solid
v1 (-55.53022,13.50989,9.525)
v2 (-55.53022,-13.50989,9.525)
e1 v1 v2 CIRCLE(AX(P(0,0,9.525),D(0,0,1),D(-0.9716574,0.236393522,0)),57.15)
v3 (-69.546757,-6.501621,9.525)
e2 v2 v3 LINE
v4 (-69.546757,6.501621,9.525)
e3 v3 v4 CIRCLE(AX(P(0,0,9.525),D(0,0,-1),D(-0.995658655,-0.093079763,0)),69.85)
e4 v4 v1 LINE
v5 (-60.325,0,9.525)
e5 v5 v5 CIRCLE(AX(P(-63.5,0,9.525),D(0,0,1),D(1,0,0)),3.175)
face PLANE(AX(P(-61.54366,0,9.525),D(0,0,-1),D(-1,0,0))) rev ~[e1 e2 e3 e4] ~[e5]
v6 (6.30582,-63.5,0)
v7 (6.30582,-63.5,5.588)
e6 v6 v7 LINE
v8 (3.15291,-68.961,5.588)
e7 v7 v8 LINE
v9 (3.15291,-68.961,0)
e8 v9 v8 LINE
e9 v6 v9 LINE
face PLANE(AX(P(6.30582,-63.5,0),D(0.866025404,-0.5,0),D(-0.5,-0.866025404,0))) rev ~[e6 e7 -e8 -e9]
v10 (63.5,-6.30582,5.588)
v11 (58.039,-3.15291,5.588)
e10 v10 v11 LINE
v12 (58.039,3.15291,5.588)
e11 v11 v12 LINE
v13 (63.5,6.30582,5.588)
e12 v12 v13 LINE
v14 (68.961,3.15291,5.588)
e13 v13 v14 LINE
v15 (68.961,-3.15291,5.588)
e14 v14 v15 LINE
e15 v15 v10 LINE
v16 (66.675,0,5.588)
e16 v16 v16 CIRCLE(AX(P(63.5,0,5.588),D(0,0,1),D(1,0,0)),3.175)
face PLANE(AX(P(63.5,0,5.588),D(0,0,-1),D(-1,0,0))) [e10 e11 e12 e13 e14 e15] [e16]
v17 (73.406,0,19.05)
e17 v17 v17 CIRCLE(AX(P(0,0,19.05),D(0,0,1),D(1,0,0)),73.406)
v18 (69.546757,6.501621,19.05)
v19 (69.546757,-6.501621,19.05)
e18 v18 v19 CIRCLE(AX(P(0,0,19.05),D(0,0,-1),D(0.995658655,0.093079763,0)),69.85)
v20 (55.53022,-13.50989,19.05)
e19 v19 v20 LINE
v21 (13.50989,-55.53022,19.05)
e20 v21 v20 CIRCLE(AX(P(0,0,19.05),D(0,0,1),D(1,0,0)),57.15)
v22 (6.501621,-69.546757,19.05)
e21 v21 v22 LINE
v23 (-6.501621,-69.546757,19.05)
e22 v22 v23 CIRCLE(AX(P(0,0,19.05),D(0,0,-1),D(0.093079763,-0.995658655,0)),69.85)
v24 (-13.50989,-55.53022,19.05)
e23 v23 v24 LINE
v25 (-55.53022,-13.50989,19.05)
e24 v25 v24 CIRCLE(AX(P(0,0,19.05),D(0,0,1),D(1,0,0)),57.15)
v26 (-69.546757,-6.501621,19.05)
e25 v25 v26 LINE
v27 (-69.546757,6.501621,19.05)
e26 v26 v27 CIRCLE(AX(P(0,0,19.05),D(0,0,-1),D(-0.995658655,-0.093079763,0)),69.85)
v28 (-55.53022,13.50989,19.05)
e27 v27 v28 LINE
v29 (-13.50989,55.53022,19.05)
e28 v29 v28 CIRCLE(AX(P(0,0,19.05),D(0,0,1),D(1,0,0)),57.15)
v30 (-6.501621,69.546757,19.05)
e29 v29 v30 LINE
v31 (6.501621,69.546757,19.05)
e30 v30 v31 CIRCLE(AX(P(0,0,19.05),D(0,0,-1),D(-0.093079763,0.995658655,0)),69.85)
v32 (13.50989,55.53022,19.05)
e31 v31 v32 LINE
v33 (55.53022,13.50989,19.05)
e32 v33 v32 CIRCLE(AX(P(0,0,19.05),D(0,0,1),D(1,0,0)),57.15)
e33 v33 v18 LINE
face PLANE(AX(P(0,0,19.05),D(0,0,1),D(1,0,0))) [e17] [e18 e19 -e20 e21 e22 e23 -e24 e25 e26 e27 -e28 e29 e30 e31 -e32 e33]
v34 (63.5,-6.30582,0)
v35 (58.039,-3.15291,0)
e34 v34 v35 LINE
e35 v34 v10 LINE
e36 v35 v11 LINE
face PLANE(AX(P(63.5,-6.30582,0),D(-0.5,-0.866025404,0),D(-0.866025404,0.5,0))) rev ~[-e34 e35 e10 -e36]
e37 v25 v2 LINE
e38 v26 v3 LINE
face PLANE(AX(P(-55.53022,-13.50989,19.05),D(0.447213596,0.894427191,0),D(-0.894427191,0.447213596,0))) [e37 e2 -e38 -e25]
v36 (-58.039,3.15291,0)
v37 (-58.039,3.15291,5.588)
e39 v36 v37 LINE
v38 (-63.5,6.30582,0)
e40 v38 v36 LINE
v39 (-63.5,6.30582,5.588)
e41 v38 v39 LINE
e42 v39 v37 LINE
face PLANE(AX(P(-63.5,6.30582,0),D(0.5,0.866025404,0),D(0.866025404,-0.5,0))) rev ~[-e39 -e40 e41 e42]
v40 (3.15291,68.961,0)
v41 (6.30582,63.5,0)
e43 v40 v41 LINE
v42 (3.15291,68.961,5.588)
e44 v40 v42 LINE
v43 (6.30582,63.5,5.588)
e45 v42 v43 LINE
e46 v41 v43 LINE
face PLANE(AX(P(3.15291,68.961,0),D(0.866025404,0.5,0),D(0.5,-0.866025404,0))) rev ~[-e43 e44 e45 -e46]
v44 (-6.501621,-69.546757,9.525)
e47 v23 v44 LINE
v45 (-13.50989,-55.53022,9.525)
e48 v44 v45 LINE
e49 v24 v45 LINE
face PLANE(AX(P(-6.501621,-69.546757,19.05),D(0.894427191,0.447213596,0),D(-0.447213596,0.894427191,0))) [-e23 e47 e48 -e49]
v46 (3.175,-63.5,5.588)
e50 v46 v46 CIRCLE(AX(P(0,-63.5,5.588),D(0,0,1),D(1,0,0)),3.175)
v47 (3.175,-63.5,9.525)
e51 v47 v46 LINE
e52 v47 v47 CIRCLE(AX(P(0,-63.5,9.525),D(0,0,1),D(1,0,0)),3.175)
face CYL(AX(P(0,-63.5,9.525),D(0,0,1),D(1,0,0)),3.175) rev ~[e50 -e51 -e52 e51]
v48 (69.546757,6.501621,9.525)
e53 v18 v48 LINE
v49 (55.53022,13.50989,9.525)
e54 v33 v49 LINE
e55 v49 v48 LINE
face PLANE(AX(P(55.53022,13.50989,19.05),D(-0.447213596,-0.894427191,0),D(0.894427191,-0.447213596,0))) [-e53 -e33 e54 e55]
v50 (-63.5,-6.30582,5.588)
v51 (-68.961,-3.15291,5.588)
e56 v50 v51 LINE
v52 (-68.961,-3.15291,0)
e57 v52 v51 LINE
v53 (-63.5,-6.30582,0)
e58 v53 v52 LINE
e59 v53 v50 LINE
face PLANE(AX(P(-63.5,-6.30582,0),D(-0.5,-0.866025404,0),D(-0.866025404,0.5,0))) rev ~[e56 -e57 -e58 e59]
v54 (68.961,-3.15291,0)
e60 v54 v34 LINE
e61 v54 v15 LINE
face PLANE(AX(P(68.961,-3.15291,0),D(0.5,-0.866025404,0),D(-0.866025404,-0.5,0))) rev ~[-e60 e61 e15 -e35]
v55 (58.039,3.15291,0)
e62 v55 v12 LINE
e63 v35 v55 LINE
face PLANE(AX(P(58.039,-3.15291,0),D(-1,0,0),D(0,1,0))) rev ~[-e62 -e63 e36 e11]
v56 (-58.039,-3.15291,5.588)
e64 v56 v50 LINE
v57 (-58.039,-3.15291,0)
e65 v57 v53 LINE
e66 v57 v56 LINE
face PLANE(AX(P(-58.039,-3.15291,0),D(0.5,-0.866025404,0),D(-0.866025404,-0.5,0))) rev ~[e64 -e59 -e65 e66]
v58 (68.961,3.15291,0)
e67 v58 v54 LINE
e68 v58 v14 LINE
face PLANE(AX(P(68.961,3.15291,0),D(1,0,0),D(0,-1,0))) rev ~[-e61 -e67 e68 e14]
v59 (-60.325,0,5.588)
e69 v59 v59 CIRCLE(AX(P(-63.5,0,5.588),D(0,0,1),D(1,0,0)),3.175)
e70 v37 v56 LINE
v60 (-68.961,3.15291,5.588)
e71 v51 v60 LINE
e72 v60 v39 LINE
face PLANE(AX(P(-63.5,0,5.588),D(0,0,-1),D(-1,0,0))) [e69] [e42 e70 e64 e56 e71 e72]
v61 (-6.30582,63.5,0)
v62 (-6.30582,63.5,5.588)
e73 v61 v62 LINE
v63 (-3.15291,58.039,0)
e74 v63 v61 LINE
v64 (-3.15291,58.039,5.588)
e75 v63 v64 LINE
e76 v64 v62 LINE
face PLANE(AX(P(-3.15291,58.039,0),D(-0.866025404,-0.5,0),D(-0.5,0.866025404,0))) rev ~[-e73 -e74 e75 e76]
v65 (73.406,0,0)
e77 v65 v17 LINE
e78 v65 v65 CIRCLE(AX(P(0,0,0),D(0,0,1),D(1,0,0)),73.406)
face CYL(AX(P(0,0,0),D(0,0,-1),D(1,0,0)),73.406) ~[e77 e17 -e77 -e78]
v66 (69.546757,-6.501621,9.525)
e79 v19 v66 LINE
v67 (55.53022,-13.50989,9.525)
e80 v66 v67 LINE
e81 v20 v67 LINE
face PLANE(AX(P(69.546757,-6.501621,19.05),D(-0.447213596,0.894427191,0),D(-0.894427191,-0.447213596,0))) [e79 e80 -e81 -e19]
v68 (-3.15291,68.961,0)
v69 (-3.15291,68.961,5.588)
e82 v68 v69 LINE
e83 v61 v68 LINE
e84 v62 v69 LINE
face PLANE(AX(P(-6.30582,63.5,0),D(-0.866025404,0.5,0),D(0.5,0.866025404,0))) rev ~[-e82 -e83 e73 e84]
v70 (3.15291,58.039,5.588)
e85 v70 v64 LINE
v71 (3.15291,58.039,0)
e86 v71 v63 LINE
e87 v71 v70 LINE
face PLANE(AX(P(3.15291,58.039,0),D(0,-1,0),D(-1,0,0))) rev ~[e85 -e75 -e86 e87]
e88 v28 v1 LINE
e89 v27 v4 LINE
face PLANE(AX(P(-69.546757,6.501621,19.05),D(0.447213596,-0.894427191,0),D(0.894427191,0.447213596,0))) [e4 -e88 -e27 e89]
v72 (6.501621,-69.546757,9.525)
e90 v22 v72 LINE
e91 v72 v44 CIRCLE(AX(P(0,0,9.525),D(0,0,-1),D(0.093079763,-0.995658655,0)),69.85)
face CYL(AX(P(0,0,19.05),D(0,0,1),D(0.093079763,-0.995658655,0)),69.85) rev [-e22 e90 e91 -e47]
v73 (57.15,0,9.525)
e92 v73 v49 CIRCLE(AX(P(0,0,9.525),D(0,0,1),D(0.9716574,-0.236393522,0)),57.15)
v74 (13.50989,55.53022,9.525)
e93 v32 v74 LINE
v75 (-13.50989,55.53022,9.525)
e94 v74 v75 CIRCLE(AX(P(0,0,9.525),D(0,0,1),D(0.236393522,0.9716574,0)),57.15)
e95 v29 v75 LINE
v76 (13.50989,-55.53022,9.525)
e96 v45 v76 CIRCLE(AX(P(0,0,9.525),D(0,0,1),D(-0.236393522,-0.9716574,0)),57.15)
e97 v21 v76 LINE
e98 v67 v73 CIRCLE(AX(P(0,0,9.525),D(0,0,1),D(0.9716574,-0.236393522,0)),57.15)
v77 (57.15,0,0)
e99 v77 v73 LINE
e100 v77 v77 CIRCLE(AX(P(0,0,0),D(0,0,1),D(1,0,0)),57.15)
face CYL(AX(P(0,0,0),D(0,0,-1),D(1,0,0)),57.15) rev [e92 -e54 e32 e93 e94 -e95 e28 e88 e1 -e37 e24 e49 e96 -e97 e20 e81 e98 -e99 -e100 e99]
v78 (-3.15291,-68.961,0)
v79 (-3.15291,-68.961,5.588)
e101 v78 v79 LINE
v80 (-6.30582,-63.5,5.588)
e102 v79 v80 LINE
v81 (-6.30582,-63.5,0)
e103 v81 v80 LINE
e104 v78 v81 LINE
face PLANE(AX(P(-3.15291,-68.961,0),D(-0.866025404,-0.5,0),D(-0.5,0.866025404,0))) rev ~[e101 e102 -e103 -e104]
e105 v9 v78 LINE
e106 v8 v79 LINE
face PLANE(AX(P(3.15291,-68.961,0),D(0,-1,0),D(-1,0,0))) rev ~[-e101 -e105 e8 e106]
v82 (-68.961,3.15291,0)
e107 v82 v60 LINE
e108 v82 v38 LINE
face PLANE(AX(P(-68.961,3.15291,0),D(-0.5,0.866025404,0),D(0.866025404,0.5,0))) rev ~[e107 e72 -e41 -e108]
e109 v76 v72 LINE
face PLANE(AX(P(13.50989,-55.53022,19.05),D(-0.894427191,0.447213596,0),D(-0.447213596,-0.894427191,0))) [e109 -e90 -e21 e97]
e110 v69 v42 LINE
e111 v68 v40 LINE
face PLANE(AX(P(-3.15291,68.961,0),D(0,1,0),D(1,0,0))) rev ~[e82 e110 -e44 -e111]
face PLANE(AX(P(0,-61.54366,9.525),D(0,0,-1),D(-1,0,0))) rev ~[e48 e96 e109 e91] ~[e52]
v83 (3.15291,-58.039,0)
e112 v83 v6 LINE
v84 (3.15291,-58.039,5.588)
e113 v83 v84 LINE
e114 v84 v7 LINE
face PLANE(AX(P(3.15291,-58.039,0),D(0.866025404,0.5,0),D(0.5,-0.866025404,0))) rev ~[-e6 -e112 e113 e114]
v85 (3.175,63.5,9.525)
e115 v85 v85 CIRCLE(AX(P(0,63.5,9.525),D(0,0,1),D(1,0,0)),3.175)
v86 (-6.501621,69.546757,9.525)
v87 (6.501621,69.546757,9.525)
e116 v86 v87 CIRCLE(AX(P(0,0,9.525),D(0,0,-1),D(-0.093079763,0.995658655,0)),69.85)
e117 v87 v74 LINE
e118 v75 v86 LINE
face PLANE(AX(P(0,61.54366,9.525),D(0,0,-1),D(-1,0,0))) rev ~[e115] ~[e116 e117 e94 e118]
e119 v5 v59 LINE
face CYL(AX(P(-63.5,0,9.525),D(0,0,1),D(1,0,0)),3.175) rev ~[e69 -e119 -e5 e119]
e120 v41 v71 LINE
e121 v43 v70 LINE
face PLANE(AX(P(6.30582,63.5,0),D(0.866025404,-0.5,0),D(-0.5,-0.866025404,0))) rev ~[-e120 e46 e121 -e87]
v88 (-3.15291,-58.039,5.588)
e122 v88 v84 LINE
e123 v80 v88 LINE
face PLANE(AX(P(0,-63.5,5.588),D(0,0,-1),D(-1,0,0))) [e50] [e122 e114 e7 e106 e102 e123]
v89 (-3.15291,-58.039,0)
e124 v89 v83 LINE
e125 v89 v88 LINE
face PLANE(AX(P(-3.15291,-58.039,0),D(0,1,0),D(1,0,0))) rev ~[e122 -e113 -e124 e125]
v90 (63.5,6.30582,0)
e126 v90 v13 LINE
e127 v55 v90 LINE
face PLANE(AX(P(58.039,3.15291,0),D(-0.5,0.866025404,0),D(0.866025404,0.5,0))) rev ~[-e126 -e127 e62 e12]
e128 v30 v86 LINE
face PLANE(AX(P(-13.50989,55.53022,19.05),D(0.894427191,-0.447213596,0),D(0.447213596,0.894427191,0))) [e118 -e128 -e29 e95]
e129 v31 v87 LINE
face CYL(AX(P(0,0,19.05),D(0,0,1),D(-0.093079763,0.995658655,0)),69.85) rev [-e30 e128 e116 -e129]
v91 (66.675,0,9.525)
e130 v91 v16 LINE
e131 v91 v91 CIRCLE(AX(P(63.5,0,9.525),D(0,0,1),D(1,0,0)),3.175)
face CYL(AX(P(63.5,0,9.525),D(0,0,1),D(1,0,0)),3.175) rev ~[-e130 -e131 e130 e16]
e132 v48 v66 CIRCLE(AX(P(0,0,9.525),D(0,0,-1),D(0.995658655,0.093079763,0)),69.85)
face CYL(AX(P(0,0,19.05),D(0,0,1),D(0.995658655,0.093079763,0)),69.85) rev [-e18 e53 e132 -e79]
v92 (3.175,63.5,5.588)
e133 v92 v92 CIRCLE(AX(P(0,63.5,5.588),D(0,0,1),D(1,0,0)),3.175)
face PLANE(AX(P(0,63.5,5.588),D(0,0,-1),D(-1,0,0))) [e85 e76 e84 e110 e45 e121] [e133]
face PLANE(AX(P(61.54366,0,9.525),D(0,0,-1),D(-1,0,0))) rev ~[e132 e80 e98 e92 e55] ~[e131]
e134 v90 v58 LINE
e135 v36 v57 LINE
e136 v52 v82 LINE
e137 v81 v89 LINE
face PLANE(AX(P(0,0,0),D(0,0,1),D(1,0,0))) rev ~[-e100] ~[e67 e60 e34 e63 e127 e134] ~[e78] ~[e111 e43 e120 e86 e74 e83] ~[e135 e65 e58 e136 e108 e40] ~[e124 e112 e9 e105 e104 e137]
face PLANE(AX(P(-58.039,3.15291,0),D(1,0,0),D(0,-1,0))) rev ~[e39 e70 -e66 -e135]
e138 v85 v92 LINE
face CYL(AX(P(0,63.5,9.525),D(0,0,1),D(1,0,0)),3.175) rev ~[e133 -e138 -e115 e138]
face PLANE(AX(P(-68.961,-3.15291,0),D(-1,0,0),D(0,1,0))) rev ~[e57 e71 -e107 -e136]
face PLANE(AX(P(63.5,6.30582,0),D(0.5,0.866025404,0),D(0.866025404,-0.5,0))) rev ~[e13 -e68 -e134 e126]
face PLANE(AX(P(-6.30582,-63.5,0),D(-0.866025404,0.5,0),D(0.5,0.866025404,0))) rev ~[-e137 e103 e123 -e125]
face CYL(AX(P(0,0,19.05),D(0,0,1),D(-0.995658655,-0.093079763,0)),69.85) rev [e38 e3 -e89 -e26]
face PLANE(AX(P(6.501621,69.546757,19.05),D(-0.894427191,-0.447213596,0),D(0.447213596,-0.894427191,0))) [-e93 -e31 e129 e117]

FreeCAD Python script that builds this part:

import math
import FreeCAD as App
import Part
import Sketcher

V = App.Vector
Q = App.Units.Quantity


def add_polygon(sketch, points):
    """Adds a closed chain of lines whose ends are joined by coincident constraints."""
    first, n = sketch.GeometryCount, len(points)
    for a, b in zip(points, points[1:] + points[:1]):
        sketch.addGeometry(Part.LineSegment(App.Vector(*a, 0), App.Vector(*b, 0)), False)
    for i in range(n):
        sketch.addConstraint(Sketcher.Constraint("Coincident", first + i, 2, first + (i + 1) % n, 1))

doc = App.newDocument("Part")
body = doc.addObject("PartDesign::Body", "Body")

# Sketch on XY plane
sketch1 = body.newObject("Sketcher::SketchObject", "Sketch")
sketch1.AttachmentSupport = (doc.getObject("XY_Plane"), [""])
sketch1.MapMode = "FlatFace"
sketch1.addGeometry([
    Part.Circle(V(0, 0, 0), V(0, 0, 1), 73),
    Part.Circle(V(0, 0, 0), V(0, 0, 1), 57),
], False)
sketch1.addConstraint([
    Sketcher.Constraint("Coincident", 0, 3, -1, 1),
    Sketcher.Constraint("Coincident", 1, 3, -1, 1),
    Sketcher.Constraint("Diameter", 1, Q("4.5 in")),
    Sketcher.Constraint("Diameter", 0, Q("5.78 in")),
])
pad1 = body.newObject("PartDesign::Pad", "Pad")
pad1.Profile = sketch1
pad1.Length = Q("0.75 in")

# Sketch on XY plane
sketch2 = body.newObject("Sketcher::SketchObject", "Sketch001")
sketch2.AttachmentSupport = (doc.getObject("XY_Plane"), [""])
sketch2.MapMode = "FlatFace"
sketch2.AttachmentOffset = App.Placement(V(0, 0, 0.75 * 25.4), App.Rotation())
sketch2.addGeometry([
    Part.LineSegment(V(-56, 14, 0), V(-70, 7, 0)),  # 0
    Part.ArcOfCircle(Part.Circle(V(0, 0, 0), V(0, 0, 1), 70), math.radians(174.66), math.radians(185.34)),  # 1
    Part.LineSegment(V(-70, -7, 0), V(-56, -14, 0)),  # 2
    Part.ArcOfCircle(Part.Circle(V(0, 0, 0), V(0, 0, 1), 57), math.radians(166), math.radians(194)),  # 3
    Part.LineSegment(V(14, 56, 0), V(7, 70, 0)),  # 4
    Part.ArcOfCircle(Part.Circle(V(0, 0, 0), V(0, 0, 1), 70), math.radians(84.66), math.radians(95.34)),  # 5
    Part.LineSegment(V(-7, 70, 0), V(-14, 56, 0)),  # 6
    Part.ArcOfCircle(Part.Circle(V(0, 0, 0), V(0, 0, 1), 57), math.radians(76), math.radians(104)),  # 7
    Part.LineSegment(V(56, -14, 0), V(70, -7, 0)),  # 8
    Part.ArcOfCircle(Part.Circle(V(0, 0, 0), V(0, 0, 1), 70), math.radians(-5.34), math.radians(5.34)),  # 9
    Part.LineSegment(V(70, 7, 0), V(56, 14, 0)),  # 10
    Part.ArcOfCircle(Part.Circle(V(0, 0, 0), V(0, 0, 1), 57), math.radians(-14), math.radians(14)),  # 11
    Part.LineSegment(V(-14, -56, 0), V(-7, -70, 0)),  # 12
    Part.ArcOfCircle(Part.Circle(V(0, 0, 0), V(0, 0, 1), 70), math.radians(-95.34), math.radians(-84.66)),  # 13
    Part.LineSegment(V(7, -70, 0), V(14, -56, 0)),  # 14
    Part.ArcOfCircle(Part.Circle(V(0, 0, 0), V(0, 0, 1), 57), math.radians(-104), math.radians(-76)),  # 15
], False)
sketch2.addConstraint([
    Sketcher.Constraint("Coincident", 0, 2, 1, 1),
    Sketcher.Constraint("Coincident", 1, 2, 2, 1),
    Sketcher.Constraint("Coincident", 2, 2, 3, 2),
    Sketcher.Constraint("Coincident", 3, 1, 0, 1),
    Sketcher.Constraint("Coincident", 4, 2, 5, 1),
    Sketcher.Constraint("Coincident", 5, 2, 6, 1),
    Sketcher.Constraint("Coincident", 6, 2, 7, 2),
    Sketcher.Constraint("Coincident", 7, 1, 4, 1),
    Sketcher.Constraint("Coincident", 8, 2, 9, 1),
    Sketcher.Constraint("Coincident", 9, 2, 10, 1),
    Sketcher.Constraint("Coincident", 10, 2, 11, 2),
    Sketcher.Constraint("Coincident", 11, 1, 8, 1),
    Sketcher.Constraint("Coincident", 12, 2, 13, 1),
    Sketcher.Constraint("Coincident", 13, 2, 14, 1),
    Sketcher.Constraint("Coincident", 14, 2, 15, 2),
    Sketcher.Constraint("Coincident", 15, 1, 12, 1),
    Sketcher.Constraint("Coincident", 1, 3, -1, 1),
    Sketcher.Constraint("Coincident", 3, 3, -1, 1),
    Sketcher.Constraint("Coincident", 5, 3, -1, 1),
    Sketcher.Constraint("Coincident", 7, 3, -1, 1),
    Sketcher.Constraint("Coincident", 9, 3, -1, 1),
    Sketcher.Constraint("Coincident", 11, 3, -1, 1),
    Sketcher.Constraint("Coincident", 13, 3, -1, 1),
    Sketcher.Constraint("Coincident", 15, 3, -1, 1),
    Sketcher.Constraint("Equal", 1, 5),
    Sketcher.Constraint("Equal", 3, 7),
    Sketcher.Constraint("Equal", 5, 9),
    Sketcher.Constraint("Equal", 7, 11),
    Sketcher.Constraint("Equal", 9, 13),
    Sketcher.Constraint("Equal", 11, 15),
    Sketcher.Constraint("Perpendicular", 0, 4),
    Sketcher.Constraint("Perpendicular", 2, 6),
    Sketcher.Constraint("Perpendicular", 4, 8),
    Sketcher.Constraint("Perpendicular", 6, 10),
    Sketcher.Constraint("Perpendicular", 8, 12),
    Sketcher.Constraint("Perpendicular", 10, 14),
    Sketcher.Constraint("Horizontal", 4, 2, 5, 2),
    Sketcher.Constraint("Horizontal", 6, 2, 7, 1),
    Sketcher.Constraint("Horizontal", 1, 2, 8, 2),
    Sketcher.Constraint("Horizontal", 0, 2, 9, 2),
    Sketcher.Constraint("Horizontal", 12, 2, 13, 2),
    Sketcher.Constraint("Vertical", 0, 2, 1, 2),
    Sketcher.Constraint("Vertical", 5, 2, 12, 2),
    Sketcher.Constraint("Equal", 2, 4),
    Sketcher.Constraint("Radius", 1, Q("2.75 in")),
    Sketcher.Constraint("Radius", 3, Q("2.25 in")),
    Sketcher.Constraint("DistanceY", -1, 1, 0, 2, 6.501621),
    Sketcher.Constraint("DistanceX", 2, 2, -1, 1, 55.53022),
])
pocket1 = body.newObject("PartDesign::Pocket", "Pocket")
pocket1.Profile = sketch2
pocket1.Length = Q("0.375 in")

# Sketch on XY plane
sketch3 = body.newObject("Sketcher::SketchObject", "Sketch002")
sketch3.AttachmentSupport = (doc.getObject("XY_Plane"), [""])
sketch3.MapMode = "FlatFace"
sketch3.AttachmentOffset = App.Placement(V(0, 0, 0.375 * 25.4), App.Rotation())
sketch3.addGeometry([
    Part.Circle(V(-63.5, 0, 0), V(0, 0, 1), 3.2),
    Part.Circle(V(0, 63.5, 0), V(0, 0, 1), 3.2),
    Part.Circle(V(63.5, 0, 0), V(0, 0, 1), 3.2),
    Part.Circle(V(0, -63.5, 0), V(0, 0, 1), 3.2),
], False)
sketch3.addConstraint([
    Sketcher.Constraint("Equal", 0, 1),
    Sketcher.Constraint("Equal", 1, 2),
    Sketcher.Constraint("Equal", 2, 3),
    Sketcher.Constraint("Symmetric", 0, 3, 2, 3, -1, 1),
    Sketcher.Constraint("Symmetric", 1, 3, 3, 3, -1, 1),
    Sketcher.Constraint("PointOnObject", 0, 3, -1),
    Sketcher.Constraint("PointOnObject", 1, 3, -2),
    Sketcher.Constraint("Diameter", 0, Q("0.25 in")),
    Sketcher.Constraint("DistanceX", 0, 3, 2, 3, Q("5 in")),
    Sketcher.Constraint("DistanceY", 3, 3, 1, 3, Q("5 in")),
])
pocket2 = body.newObject("PartDesign::Pocket", "Pocket001")
pocket2.Profile = sketch3
pocket2.Length = Q("0.375 in")

# Sketch on XY plane
sketch4 = body.newObject("Sketcher::SketchObject", "Sketch003")
sketch4.AttachmentSupport = (doc.getObject("XY_Plane"), [""])
sketch4.MapMode = "FlatFace"
add_polygon(sketch4, [(6, 64), (3, 58), (-3, 58), (-6, 64), (-3, 69), (3, 69)])  # lines 0-5
add_polygon(sketch4, [(64, -6), (58, -3), (58, 3), (64, 6), (69, 3), (69, -3)])  # lines 6-11
add_polygon(sketch4, [(-64, 6), (-58, 3), (-58, -3), (-64, -6), (-69, -3), (-69, 3)])  # lines 12-17
add_polygon(sketch4, [(-6, -64), (-3, -58), (3, -58), (6, -64), (3, -69), (-3, -69)])  # lines 18-23
sketch4.addConstraint([
    Sketcher.Constraint("Horizontal", 1),
    Sketcher.Constraint("Horizontal", 4),
    Sketcher.Constraint("Vertical", 7),
    Sketcher.Constraint("Vertical", 10),
    Sketcher.Constraint("Vertical", 13),
    Sketcher.Constraint("Vertical", 16),
    Sketcher.Constraint("Horizontal", 19),
    Sketcher.Constraint("Horizontal", 22),
    Sketcher.Constraint("Symmetric", 6, 2, 12, 2, -1, 1),
    Sketcher.Constraint("Symmetric", 8, 2, 14, 2, -1, 1),
    Sketcher.Constraint("Symmetric", 9, 2, 15, 2, -1, 1),
    Sketcher.Constraint("Symmetric", 11, 2, 17, 2, -1, 1),
    Sketcher.Constraint("Symmetric", 0, 2, 18, 2, -1, 1),
    Sketcher.Constraint("Symmetric", 2, 2, 20, 2, -1, 1),
    Sketcher.Constraint("Symmetric", 3, 2, 21, 2, -1, 1),
    Sketcher.Constraint("Symmetric", 5, 2, 23, 2, -1, 1),
    Sketcher.Constraint("Symmetric", 2, 2, 5, 2, -2),
    Sketcher.Constraint("Symmetric", 11, 2, 14, 2, -2),
    Sketcher.Constraint("Parallel", 0, 3),
    Sketcher.Constraint("Parallel", 2, 5),
    Sketcher.Constraint("Perpendicular", 3, 6),
    Sketcher.Constraint("Perpendicular", 5, 8),
    Sketcher.Constraint("Parallel", 6, 9),
    Sketcher.Constraint("Parallel", 8, 11),
    Sketcher.Constraint("Parallel", 11, 14),
    Sketcher.Constraint("Parallel", 14, 17),
    Sketcher.Constraint("Perpendicular", 17, 20),
    Sketcher.Constraint("Parallel", 20, 23),
    Sketcher.Constraint("Horizontal", 7, 2, 9, 2),
    Sketcher.Constraint("Horizontal", 6, 2, 10, 2),
    Sketcher.Constraint("Vertical", 1, 2, 3, 2),
    Sketcher.Constraint("Equal", 22, 7),
    Sketcher.Constraint("Equal", 5, 6),
    Sketcher.Constraint("Angle", 0, Q("-120 deg")),
    Sketcher.Constraint("DistanceY", -1, 1, 2, 2, Q("2.5 in")),
    Sketcher.Constraint("DistanceX", -1, 1, 8, 2, Q("2.5 in")),
    Sketcher.Constraint("DistanceY", 1, 2, 3, 2, Q("0.43 in")),
    Sketcher.Constraint("DistanceX", 1, 2, 1, 1, 6.30582),
])
pocket3 = body.newObject("PartDesign::Pocket", "Pocket002")
pocket3.Profile = sketch4
pocket3.Length = Q("0.22 in")
pocket3.Reversed = True

doc.recompute()
